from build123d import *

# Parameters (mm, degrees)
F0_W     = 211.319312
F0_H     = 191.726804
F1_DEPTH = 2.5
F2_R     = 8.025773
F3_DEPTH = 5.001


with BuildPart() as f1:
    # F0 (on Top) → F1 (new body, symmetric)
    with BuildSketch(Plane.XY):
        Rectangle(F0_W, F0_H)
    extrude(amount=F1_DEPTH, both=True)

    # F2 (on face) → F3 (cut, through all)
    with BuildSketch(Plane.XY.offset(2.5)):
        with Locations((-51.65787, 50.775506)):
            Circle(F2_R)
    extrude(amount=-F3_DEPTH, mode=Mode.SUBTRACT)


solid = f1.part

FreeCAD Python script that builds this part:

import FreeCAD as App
import Part
import Sketcher
from FreeCAD import Vector


def add_polygon(sketch, points):
    """Adds a closed chain of lines whose ends are joined by coincident constraints."""
    first, n = sketch.GeometryCount, len(points)
    for a, b in zip(points, points[1:] + points[:1]):
        sketch.addGeometry(Part.LineSegment(App.Vector(*a, 0), App.Vector(*b, 0)), False)
    for i in range(n):
        sketch.addConstraint(Sketcher.Constraint("Coincident", first + i, 2, first + (i + 1) % n, 1))

doc = App.newDocument("Part")
body = doc.addObject("PartDesign::Body", "Body")

sketch1 = body.newObject("Sketcher::SketchObject", "Sketch")
sketch1.AttachmentSupport = (doc.getObject("XY_Plane"), [""])
sketch1.MapMode = "FlatFace"
add_polygon(sketch1, [(-105.659656, 95.863402), (-105.659656, -95.863402), (105.659656, -95.863402), (105.659656, 95.863402)])
sketch1.addConstraint(Sketcher.Constraint("Vertical", 0))
sketch1.addConstraint(Sketcher.Constraint("Horizontal", 1))
sketch1.addConstraint(Sketcher.Constraint("Vertical", 2))
sketch1.addConstraint(Sketcher.Constraint("Horizontal", 3))
sketch1.addConstraint(Sketcher.Constraint("Symmetric", 0, 2, 2, 2, -1, 1))
sketch1.addConstraint(Sketcher.Constraint("DistanceX", 1, 1, 1, 2, 211.319312))
sketch1.addConstraint(Sketcher.Constraint("DistanceY", 0, 2, -1, 1, 95.863402))
pad1 = body.newObject("PartDesign::Pad", "Pad")
pad1.Profile = sketch1
pad1.Length = 5
pad1.Midplane = True

sketch2 = body.newObject("Sketcher::SketchObject", "Sketch001")
sketch2.AttachmentSupport = (doc.getObject("XY_Plane"), [""])
sketch2.MapMode = "FlatFace"
sketch2.AttachmentOffset = App.Placement(Vector(0, 0, 2.5), App.Rotation())
sketch2.addGeometry(Part.Circle(Vector(-51.65787, 50.775506, 0), Vector(0, 0, 1), 8.025773), False)
sketch2.addConstraint(Sketcher.Constraint("Diameter", 0, 16.051546))
sketch2.addConstraint(Sketcher.Constraint("DistanceX", 0, 3, -1, 1, 51.65787))
sketch2.addConstraint(Sketcher.Constraint("DistanceY", -1, 1, 0, 3, 50.775506))
pocket1 = body.newObject("PartDesign::Pocket", "Pocket")
pocket1.Profile = sketch2
pocket1.Type = "ThroughAll"

doc.recompute()
